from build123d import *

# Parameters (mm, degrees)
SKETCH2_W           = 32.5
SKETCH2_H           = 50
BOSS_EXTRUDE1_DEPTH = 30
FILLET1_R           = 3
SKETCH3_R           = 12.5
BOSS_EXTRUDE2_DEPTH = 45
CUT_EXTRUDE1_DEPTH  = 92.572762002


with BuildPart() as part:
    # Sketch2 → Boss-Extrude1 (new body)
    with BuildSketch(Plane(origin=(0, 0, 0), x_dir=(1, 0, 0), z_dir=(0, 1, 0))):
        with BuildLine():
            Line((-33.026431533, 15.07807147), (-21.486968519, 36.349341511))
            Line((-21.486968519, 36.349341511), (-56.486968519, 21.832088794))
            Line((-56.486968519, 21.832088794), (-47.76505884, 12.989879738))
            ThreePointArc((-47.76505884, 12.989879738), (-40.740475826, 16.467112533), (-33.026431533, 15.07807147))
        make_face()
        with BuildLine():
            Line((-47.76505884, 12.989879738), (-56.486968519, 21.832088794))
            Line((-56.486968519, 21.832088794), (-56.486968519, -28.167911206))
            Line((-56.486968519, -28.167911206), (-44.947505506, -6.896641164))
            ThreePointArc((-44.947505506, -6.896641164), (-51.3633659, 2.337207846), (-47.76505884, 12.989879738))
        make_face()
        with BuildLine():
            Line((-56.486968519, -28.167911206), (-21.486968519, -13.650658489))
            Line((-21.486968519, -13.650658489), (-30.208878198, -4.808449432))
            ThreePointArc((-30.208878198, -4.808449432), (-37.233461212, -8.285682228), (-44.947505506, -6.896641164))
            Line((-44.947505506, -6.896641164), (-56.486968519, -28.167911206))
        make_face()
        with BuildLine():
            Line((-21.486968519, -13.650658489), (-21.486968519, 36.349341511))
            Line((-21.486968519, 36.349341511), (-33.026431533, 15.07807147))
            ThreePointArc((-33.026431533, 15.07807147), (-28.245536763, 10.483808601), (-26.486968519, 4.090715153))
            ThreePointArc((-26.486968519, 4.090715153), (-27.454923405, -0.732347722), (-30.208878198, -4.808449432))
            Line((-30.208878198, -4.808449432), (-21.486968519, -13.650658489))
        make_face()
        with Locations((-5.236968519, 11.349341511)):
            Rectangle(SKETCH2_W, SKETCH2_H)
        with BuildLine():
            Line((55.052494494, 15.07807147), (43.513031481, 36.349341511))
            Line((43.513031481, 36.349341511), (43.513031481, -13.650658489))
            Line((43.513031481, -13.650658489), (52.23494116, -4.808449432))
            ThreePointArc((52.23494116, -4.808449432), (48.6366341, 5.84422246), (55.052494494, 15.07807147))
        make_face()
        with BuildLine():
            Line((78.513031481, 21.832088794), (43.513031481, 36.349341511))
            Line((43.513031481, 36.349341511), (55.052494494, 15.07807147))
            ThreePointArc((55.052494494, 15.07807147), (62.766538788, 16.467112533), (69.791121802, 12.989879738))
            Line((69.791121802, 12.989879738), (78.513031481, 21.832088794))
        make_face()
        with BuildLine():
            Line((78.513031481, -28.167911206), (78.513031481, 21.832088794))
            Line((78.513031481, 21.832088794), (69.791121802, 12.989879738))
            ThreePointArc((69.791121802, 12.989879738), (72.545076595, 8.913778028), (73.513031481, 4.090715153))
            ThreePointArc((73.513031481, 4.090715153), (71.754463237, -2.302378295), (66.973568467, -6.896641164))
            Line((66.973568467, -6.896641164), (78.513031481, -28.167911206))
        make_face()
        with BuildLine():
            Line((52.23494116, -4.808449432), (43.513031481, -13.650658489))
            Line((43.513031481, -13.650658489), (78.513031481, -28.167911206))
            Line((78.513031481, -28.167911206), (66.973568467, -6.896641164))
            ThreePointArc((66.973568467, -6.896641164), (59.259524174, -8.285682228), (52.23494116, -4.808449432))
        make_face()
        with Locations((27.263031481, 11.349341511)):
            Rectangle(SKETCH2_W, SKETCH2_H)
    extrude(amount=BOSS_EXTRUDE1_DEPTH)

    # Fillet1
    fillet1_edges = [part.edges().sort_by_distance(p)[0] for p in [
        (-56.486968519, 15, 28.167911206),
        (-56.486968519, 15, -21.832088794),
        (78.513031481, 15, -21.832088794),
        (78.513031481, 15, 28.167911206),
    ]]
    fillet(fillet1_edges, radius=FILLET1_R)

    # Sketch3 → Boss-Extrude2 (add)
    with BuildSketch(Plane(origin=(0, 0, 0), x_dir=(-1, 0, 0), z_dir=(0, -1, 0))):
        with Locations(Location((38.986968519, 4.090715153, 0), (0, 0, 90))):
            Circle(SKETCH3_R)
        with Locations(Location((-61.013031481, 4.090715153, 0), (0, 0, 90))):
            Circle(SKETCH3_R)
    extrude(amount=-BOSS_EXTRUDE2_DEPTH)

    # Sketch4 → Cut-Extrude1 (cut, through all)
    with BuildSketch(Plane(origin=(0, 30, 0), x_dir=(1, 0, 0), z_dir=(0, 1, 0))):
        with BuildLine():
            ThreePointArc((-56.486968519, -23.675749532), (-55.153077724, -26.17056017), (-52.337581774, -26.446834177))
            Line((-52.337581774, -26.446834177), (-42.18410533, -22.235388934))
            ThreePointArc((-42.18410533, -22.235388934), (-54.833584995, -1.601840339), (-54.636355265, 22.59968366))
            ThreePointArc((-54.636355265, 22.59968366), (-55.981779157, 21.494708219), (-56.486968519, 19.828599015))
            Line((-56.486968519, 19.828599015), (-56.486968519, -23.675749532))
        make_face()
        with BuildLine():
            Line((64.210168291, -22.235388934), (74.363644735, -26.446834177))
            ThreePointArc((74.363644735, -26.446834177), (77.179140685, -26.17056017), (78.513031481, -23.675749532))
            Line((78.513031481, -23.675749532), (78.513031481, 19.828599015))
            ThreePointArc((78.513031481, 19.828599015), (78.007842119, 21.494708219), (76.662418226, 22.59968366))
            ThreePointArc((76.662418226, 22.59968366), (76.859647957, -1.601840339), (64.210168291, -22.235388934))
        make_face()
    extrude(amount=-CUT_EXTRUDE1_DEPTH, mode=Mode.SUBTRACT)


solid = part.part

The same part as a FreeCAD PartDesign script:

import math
import FreeCAD as App
import Part
import Sketcher

V = App.Vector


def edges_at(feature, points):
    """Names of the edges that pass closest to the given points."""
    edges = feature.Shape.Edges
    near = lambda p: min(range(len(edges)), key=lambda i: edges[i].distToShape(Part.Vertex(*p))[0])
    return sorted({f"Edge{near(p) + 1}" for p in points})

doc = App.newDocument("Part")
body = doc.addObject("PartDesign::Body", "Body")

sketch1 = doc.addObject("Sketcher::SketchObject", "Sketch")
body.addObject(sketch1)
sketch1.AttachmentSupport = (doc.XZ_Plane, [""])
sketch1.MapMode = "FlatFace"
sketch1.addGeometry(Part.LineSegment(V(-21.486969, -36.349342, 0), V(-56.486969, -21.832089, 0)), False)
sketch1.addGeometry(Part.LineSegment(V(-56.486969, -21.832089, 0), V(-56.486969, 28.167911, 0)), False)
sketch1.addGeometry(Part.LineSegment(V(-56.486969, 28.167911, 0), V(-21.486969, 13.650658, 0)), False)
sketch1.addGeometry(Part.LineSegment(V(-21.486969, 13.650658, 0), V(43.513031, 13.650658, 0)), False)
sketch1.addGeometry(Part.LineSegment(V(43.513031, 13.650658, 0), V(78.513031, 28.167911, 0)), False)
sketch1.addGeometry(Part.LineSegment(V(78.513031, 28.167911, 0), V(78.513031, -21.832089, 0)), False)
sketch1.addGeometry(Part.LineSegment(V(78.513031, -21.832089, 0), V(43.513031, -36.349342, 0)), False)
sketch1.addGeometry(Part.LineSegment(V(43.513031, -36.349342, 0), V(-21.486969, -36.349342, 0)), False)
sketch1.addGeometry(Part.ArcOfCircle(Part.Circle(V(-38.986969, -4.090715, 0), V(0, 0, 1), 12.5), math.radians(45.392422), math.radians(118.479413)), False)
sketch1.addGeometry(Part.ArcOfCircle(Part.Circle(V(-38.986969, -4.090715, 0), V(0, 0, 1), 12.5), math.radians(118.479413), math.radians(225.392422)), False)
sketch1.addGeometry(Part.ArcOfCircle(Part.Circle(V(-38.986969, -4.090715, 0), V(0, 0, 1), 12.5), math.radians(-134.607578), math.radians(-61.520587)), False)
sketch1.addGeometry(Part.ArcOfCircle(Part.Circle(V(-38.986969, -4.090715, 0), V(0, 0, 1), 12.5), math.radians(-61.520587), math.radians(0)), False)
sketch1.addGeometry(Part.ArcOfCircle(Part.Circle(V(-38.986969, -4.090715, 0), V(0, 0, 1), 12.5), math.radians(0), math.radians(45.392422)), False)
sketch1.addGeometry(Part.ArcOfCircle(Part.Circle(V(61.013031, -4.090715, 0), V(0, 0, 1), 12.5), math.radians(61.520587), math.radians(134.607578)), False)
sketch1.addGeometry(Part.ArcOfCircle(Part.Circle(V(61.013031, -4.090715, 0), V(0, 0, 1), 12.5), math.radians(134.607578), math.radians(241.520587)), False)
sketch1.addGeometry(Part.ArcOfCircle(Part.Circle(V(61.013031, -4.090715, 0), V(0, 0, 1), 12.5), math.radians(-118.479413), math.radians(-45.392422)), False)
sketch1.addGeometry(Part.ArcOfCircle(Part.Circle(V(61.013031, -4.090715, 0), V(0, 0, 1), 12.5), math.radians(-45.392422), math.radians(0)), False)
sketch1.addGeometry(Part.ArcOfCircle(Part.Circle(V(61.013031, -4.090715, 0), V(0, 0, 1), 12.5), math.radians(0), math.radians(61.520587)), False)
sketch1.addConstraint(Sketcher.Constraint("Coincident", 0, 2, 1, 1))
sketch1.addConstraint(Sketcher.Constraint("Coincident", 1, 2, 2, 1))
sketch1.addConstraint(Sketcher.Constraint("Coincident", 2, 2, 3, 1))
sketch1.addConstraint(Sketcher.Constraint("Coincident", 3, 2, 4, 1))
sketch1.addConstraint(Sketcher.Constraint("Coincident", 4, 2, 5, 1))
sketch1.addConstraint(Sketcher.Constraint("Coincident", 5, 2, 6, 1))
sketch1.addConstraint(Sketcher.Constraint("Coincident", 6, 2, 7, 1))
sketch1.addConstraint(Sketcher.Constraint("Coincident", 7, 2, 0, 1))
sketch1.addConstraint(Sketcher.Constraint("Tangent", 8, 2, 9, 1))
sketch1.addConstraint(Sketcher.Constraint("Tangent", 9, 2, 10, 1))
sketch1.addConstraint(Sketcher.Constraint("Tangent", 10, 2, 11, 1))
sketch1.addConstraint(Sketcher.Constraint("Tangent", 11, 2, 12, 1))
sketch1.addConstraint(Sketcher.Constraint("Tangent", 12, 2, 8, 1))
sketch1.addConstraint(Sketcher.Constraint("Tangent", 13, 2, 14, 1))
sketch1.addConstraint(Sketcher.Constraint("Tangent", 14, 2, 15, 1))
sketch1.addConstraint(Sketcher.Constraint("Tangent", 15, 2, 16, 1))
sketch1.addConstraint(Sketcher.Constraint("Tangent", 16, 2, 17, 1))
sketch1.addConstraint(Sketcher.Constraint("Tangent", 17, 2, 13, 1))
sketch1.addConstraint(Sketcher.Constraint("Vertical", 1))
sketch1.addConstraint(Sketcher.Constraint("Horizontal", 3))
sketch1.addConstraint(Sketcher.Constraint("Vertical", 5))
sketch1.addConstraint(Sketcher.Constraint("Horizontal", 7))
sketch1.addConstraint(Sketcher.Constraint("Coincident", 10, 3, 8, 3))
sketch1.addConstraint(Sketcher.Constraint("Coincident", 15, 3, 13, 3))
sketch1.addConstraint(Sketcher.Constraint("Equal", 12, 13))
sketch1.addConstraint(Sketcher.Constraint("Parallel", 0, 2))
sketch1.addConstraint(Sketcher.Constraint("Parallel", 4, 6))
sketch1.addConstraint(Sketcher.Constraint("Horizontal", 12, 3, 13, 3))
sketch1.addConstraint(Sketcher.Constraint("Horizontal", 1, 2, 4, 2))
sketch1.addConstraint(Sketcher.Constraint("Horizontal", 0, 2, 5, 2))
sketch1.addConstraint(Sketcher.Constraint("Horizontal", 17, 3, 11, 2))
sketch1.addConstraint(Sketcher.Constraint("Horizontal", 12, 2, 13, 2))
sketch1.addConstraint(Sketcher.Constraint("Horizontal", 10, 2, 14, 2))
sketch1.addConstraint(Sketcher.Constraint("Horizontal", 9, 2, 15, 2))
sketch1.addConstraint(Sketcher.Constraint("Horizontal", 11, 2, 16, 2))
sketch1.addConstraint(Sketcher.Constraint("Horizontal", 8, 2, 17, 2))
sketch1.addConstraint(Sketcher.Constraint("Vertical", 3, 2, 6, 2))
sketch1.addConstraint(Sketcher.Constraint("Equal", 2, 4))
sketch1.addConstraint(Sketcher.Constraint("Radius", 8, 12.5))
sketch1.addConstraint(Sketcher.Constraint("DistanceX", 3, 1, 3, 2, 65.0))
sketch1.addConstraint(Sketcher.Constraint("DistanceY", 1, 1, 1, 2, 50.0))
sketch1.addConstraint(Sketcher.Constraint("DistanceX", 12, 3, 13, 3, 100.0))
sketch1.addConstraint(Sketcher.Constraint("DistanceX", 0, 2, 9, 3, 17.5))
sketch1.addConstraint(Sketcher.Constraint("DistanceX", 12, 3, 2, 2, 17.5))
sketch1.addConstraint(Sketcher.Constraint("Distance", 0, 37.8913))
sketch1.addConstraint(Sketcher.Constraint("DistanceX", 8, 3, -1, 1, 38.986969))
sketch1.addConstraint(Sketcher.Constraint("DistanceY", 0, 2, -1, 1, 21.832089))
sketch1.addConstraint(Sketcher.Constraint("DistanceY", -1, 1, 8, 2, 6.896641))
sketch1.addConstraint(Sketcher.Constraint("DistanceX", 9, 2, -1, 1, 47.765059))
sketch1.addConstraint(Sketcher.Constraint("DistanceY", 9, 2, -1, 1, 12.98988))
sketch1.addConstraint(Sketcher.Constraint("DistanceX", 10, 2, -1, 1, 33.026432))
sketch1.addConstraint(Sketcher.Constraint("DistanceX", 12, 2, -1, 1, 30.208878))
pad1 = doc.addObject("PartDesign::Pad", "Pad")
body.addObject(pad1)
pad1.Profile = sketch1
pad1.Length = 30
pad1.Reversed = True
doc.recompute()

fillet = doc.addObject("PartDesign::Fillet", "Fillet")
body.addObject(fillet)
fillet.Base = (pad1, edges_at(pad1, [
    (-56.487, 15, 28.168),
    (-56.487, 15, -21.832),
    (78.513, 15, -21.832),
    (78.513, 15, 28.168),
]))
fillet.Radius = 3

sketch2 = doc.addObject("Sketcher::SketchObject", "Sketch001")
body.addObject(sketch2)
sketch2.AttachmentSupport = (doc.XZ_Plane, [""])
sketch2.MapMode = "FlatFace"
sketch2.addGeometry(Part.Circle(V(-38.986969, -4.090715, 0), V(0, 0, 1), 12.5), False)
sketch2.addGeometry(Part.Circle(V(61.013031, -4.090715, 0), V(0, 0, 1), 12.5), False)
sketch2.addConstraint(Sketcher.Constraint("Equal", 0, 1))
sketch2.addConstraint(Sketcher.Constraint("Horizontal", 0, 3, 1, 3))
sketch2.addConstraint(Sketcher.Constraint("Diameter", 0, 25.0))
sketch2.addConstraint(Sketcher.Constraint("DistanceX", 0, 3, 1, 3, 100.0))
sketch2.addConstraint(Sketcher.Constraint("DistanceX", 0, 3, -1, 1, 38.986969))
sketch2.addConstraint(Sketcher.Constraint("DistanceY", 0, 3, -1, 1, 4.090715))
pad2 = doc.addObject("PartDesign::Pad", "Pad001")
body.addObject(pad2)
pad2.Profile = sketch2
pad2.Length = 45
pad2.Reversed = True

sketch3 = doc.addObject("Sketcher::SketchObject", "Sketch002")
body.addObject(sketch3)
sketch3.AttachmentSupport = (doc.XZ_Plane, [""])
sketch3.MapMode = "FlatFace"
sketch3.AttachmentOffset = App.Placement(V(0, 0, -30), App.Rotation())
sketch3.addGeometry(Part.ArcOfCircle(Part.Circle(V(-53.486969, 23.67575, 0), V(0, 0, 1), 3), math.radians(67.47237), math.radians(180)), False)
sketch3.addGeometry(Part.LineSegment(V(-52.337582, 26.446834, 0), V(-42.184105, 22.235389, 0)), False)
sketch3.addGeometry(Part.ArcOfCircle(Part.Circle(V(-12.503257, -10.154755, 0), V(0, 0, 1), 43.93261), math.radians(132.50072), math.radians(196.455654)), False)
sketch3.addGeometry(Part.ArcOfCircle(Part.Circle(V(-53.486969, -19.828599, 0), V(0, 0, 1), 3), math.radians(-180), math.radians(-112.52763)), False)
sketch3.addGeometry(Part.LineSegment(V(-56.486969, -19.828599, 0), V(-56.486969, 23.67575, 0)), False)
sketch3.addGeometry(Part.LineSegment(V(64.210168, 22.235389, 0), V(74.363645, 26.446834, 0)), False)
sketch3.addGeometry(Part.ArcOfCircle(Part.Circle(V(75.513031, 23.67575, 0), V(0, 0, 1), 3), math.radians(0), math.radians(112.52763)), False)
sketch3.addGeometry(Part.LineSegment(V(78.513031, 23.67575, 0), V(78.513031, -19.828599, 0)), False)
sketch3.addGeometry(Part.ArcOfCircle(Part.Circle(V(75.513031, -19.828599, 0), V(0, 0, 1), 3), math.radians(-67.47237), math.radians(0)), False)
sketch3.addGeometry(Part.ArcOfCircle(Part.Circle(V(34.52932, -10.154755, 0), V(0, 0, 1), 43.93261), math.radians(-16.455654), math.radians(47.49928)), False)
sketch3.addConstraint(Sketcher.Constraint("Tangent", 0, 1, 1, 1))
sketch3.addConstraint(Sketcher.Constraint("Coincident", 1, 2, 2, 1))
sketch3.addConstraint(Sketcher.Constraint("Coincident", 2, 2, 3, 2))
sketch3.addConstraint(Sketcher.Constraint("Tangent", 3, 1, 4, 1))
sketch3.addConstraint(Sketcher.Constraint("Tangent", 4, 2, 0, 2))
sketch3.addConstraint(Sketcher.Constraint("Tangent", 5, 2, 6, 2))
sketch3.addConstraint(Sketcher.Constraint("Tangent", 6, 1, 7, 1))
sketch3.addConstraint(Sketcher.Constraint("Tangent", 7, 2, 8, 2))
sketch3.addConstraint(Sketcher.Constraint("Coincident", 8, 1, 9, 1))
sketch3.addConstraint(Sketcher.Constraint("Coincident", 9, 2, 5, 1))
sketch3.addConstraint(Sketcher.Constraint("Vertical", 4))
sketch3.addConstraint(Sketcher.Constraint("Vertical", 7))
sketch3.addConstraint(Sketcher.Constraint("Equal", 0, 3))
sketch3.addConstraint(Sketcher.Constraint("Equal", 3, 6))
sketch3.addConstraint(Sketcher.Constraint("Equal", 6, 8))
sketch3.addConstraint(Sketcher.Constraint("Equal", 2, 9))
sketch3.addConstraint(Sketcher.Constraint("Horizontal", 0, 3, 6, 3))
sketch3.addConstraint(Sketcher.Constraint("Horizontal", 3, 3, 8, 3))
sketch3.addConstraint(Sketcher.Constraint("Horizontal", 2, 3, 9, 3))
sketch3.addConstraint(Sketcher.Constraint("Horizontal", 0, 1, 5, 2))
sketch3.addConstraint(Sketcher.Constraint("Horizontal", 2, 2, 8, 1))
sketch3.addConstraint(Sketcher.Constraint("Radius", 0, 3.0))
sketch3.addConstraint(Sketcher.Constraint("DistanceX", 0, 3, 6, 3, 129.0))
sketch3.addConstraint(Sketcher.Constraint("Radius", 2, 43.93261))
sketch3.addConstraint(Sketcher.Constraint("DistanceY", 4, 1, 4, 2, 43.504349))
sketch3.addConstraint(Sketcher.Constraint("DistanceY", 3, 3, -1, 1, 19.828599))
sketch3.addConstraint(Sketcher.Constraint("DistanceX", 0, 1, 9, 3, 86.866902))
sketch3.addConstraint(Sketcher.Constraint("DistanceX", 2, 2, 2, 3, 42.133098))
sketch3.addConstraint(Sketcher.Constraint("Distance", 1, 10.992241))
sketch3.addConstraint(Sketcher.Constraint("DistanceX", 0, 3, -1, 1, 53.486969))
pocket1 = doc.addObject("PartDesign::Pocket", "Pocket")
body.addObject(pocket1)
pocket1.Profile = sketch3
pocket1.Type = "ThroughAll"
pocket1.Reversed = True

doc.recompute()
